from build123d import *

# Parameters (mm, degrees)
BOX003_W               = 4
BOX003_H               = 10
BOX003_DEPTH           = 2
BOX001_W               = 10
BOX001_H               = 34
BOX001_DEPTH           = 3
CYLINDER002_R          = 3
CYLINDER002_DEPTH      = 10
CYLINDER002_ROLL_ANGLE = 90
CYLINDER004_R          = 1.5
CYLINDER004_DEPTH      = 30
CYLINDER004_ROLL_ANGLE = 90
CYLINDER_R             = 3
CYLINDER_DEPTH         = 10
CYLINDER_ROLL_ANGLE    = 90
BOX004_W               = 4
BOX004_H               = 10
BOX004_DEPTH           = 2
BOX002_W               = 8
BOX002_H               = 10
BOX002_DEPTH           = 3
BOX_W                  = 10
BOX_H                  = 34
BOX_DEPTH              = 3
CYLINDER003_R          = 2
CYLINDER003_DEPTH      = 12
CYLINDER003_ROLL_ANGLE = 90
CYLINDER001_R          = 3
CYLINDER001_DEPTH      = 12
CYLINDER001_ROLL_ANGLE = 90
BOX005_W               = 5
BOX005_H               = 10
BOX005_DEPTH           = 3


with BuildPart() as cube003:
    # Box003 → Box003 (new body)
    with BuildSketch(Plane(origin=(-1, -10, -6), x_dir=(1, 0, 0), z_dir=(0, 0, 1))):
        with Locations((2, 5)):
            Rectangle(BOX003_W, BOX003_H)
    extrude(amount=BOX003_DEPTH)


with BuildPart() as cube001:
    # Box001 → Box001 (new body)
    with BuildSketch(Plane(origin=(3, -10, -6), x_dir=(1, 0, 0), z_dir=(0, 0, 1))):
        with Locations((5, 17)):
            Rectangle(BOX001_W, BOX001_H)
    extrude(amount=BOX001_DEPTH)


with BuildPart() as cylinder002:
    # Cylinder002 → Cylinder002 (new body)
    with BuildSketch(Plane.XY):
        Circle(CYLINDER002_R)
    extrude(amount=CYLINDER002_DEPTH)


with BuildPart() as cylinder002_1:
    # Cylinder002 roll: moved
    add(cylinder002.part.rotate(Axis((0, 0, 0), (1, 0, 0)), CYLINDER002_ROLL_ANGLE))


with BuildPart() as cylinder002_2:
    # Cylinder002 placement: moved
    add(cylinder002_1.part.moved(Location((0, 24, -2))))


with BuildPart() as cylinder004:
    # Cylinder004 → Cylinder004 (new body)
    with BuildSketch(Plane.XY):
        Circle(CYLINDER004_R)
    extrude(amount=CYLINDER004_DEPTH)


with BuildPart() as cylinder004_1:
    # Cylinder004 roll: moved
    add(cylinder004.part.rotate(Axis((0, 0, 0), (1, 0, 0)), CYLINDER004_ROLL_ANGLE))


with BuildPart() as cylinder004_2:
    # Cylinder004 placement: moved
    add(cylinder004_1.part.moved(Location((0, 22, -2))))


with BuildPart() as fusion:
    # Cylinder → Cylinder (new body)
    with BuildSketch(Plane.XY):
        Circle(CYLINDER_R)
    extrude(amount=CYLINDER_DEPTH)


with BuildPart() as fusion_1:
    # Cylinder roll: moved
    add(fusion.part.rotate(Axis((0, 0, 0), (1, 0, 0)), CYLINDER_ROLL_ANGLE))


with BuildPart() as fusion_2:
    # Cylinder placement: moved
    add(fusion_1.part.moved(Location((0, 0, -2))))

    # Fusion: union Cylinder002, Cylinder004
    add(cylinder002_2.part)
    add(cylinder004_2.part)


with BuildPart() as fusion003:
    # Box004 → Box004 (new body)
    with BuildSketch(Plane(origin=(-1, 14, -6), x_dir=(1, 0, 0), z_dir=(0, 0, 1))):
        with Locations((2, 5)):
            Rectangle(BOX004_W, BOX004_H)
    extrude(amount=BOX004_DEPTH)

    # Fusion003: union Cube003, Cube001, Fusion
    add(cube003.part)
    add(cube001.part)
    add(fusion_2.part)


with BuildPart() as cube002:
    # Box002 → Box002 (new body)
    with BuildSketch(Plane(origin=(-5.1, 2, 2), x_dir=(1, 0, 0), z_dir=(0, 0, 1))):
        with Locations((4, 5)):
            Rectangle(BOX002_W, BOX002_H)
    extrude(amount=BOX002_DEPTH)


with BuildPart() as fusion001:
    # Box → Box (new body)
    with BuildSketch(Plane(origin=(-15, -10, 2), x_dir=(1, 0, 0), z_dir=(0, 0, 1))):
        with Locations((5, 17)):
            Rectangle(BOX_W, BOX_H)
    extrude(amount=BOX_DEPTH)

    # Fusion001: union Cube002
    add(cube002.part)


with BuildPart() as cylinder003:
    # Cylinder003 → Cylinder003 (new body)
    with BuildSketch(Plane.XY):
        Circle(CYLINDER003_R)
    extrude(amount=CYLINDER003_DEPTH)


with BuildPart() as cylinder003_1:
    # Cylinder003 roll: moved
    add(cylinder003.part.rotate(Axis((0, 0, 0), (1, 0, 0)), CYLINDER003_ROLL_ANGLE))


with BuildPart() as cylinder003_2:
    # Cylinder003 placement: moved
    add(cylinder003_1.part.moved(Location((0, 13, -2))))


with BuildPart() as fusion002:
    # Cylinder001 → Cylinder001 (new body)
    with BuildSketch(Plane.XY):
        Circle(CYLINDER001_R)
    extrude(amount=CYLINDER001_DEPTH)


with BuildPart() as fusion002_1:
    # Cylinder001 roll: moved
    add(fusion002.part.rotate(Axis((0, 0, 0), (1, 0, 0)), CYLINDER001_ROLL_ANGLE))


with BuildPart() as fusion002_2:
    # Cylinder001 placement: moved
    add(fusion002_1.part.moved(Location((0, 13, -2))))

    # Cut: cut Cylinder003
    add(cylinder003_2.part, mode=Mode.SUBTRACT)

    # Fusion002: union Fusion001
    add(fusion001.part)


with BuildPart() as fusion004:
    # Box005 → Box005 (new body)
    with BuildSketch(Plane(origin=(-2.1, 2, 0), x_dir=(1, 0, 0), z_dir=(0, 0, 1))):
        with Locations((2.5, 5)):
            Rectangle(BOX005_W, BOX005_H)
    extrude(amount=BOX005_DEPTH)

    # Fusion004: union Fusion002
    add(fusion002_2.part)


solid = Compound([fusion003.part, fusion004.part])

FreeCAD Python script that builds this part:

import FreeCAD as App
import Part
import Sketcher
Q = App.Units.Quantity


def add_polygon(sketch, points):
    """Adds a closed chain of lines whose ends are joined by coincident constraints."""
    first, n = sketch.GeometryCount, len(points)
    for a, b in zip(points, points[1:] + points[:1]):
        sketch.addGeometry(Part.LineSegment(App.Vector(*a, 0), App.Vector(*b, 0)), False)
    for i in range(n):
        sketch.addConstraint(Sketcher.Constraint("Coincident", first + i, 2, first + (i + 1) % n, 1))

doc = App.newDocument("Part")
body = doc.addObject("PartDesign::Body", "Body")

# Sketch on XY plane
sketch1 = body.newObject("Sketcher::SketchObject", "Sketch")
sketch1.AttachmentSupport = (doc.getObject("XY_Plane"), [""])
sketch1.MapMode = "FlatFace"
sketch1.AttachmentOffset = App.Placement(App.Vector(0, 0, -6), App.Rotation())
add_polygon(sketch1, [(-1, 0), (-1, -10), (3, -10), (3, 0)])  # lines 0-3
sketch1.addConstraint([
    Sketcher.Constraint("Vertical", 0),
    Sketcher.Constraint("Horizontal", 1),
    Sketcher.Constraint("Vertical", 2),
    Sketcher.Constraint("Horizontal", 3),
    Sketcher.Constraint("PointOnObject", 2, 2, -1),
    Sketcher.Constraint("DistanceX", 1, 1, 1, 2, Q("4 mm")),
    Sketcher.Constraint("DistanceY", 0, 2, 0, 1, Q("10 mm")),
    Sketcher.Constraint("DistanceX", 0, 2, -1, 1, Q("1 mm")),
])
pad1 = body.newObject("PartDesign::Pad", "Pad")
pad1.Profile = sketch1
pad1.Length = 2
body2 = doc.addObject("PartDesign::Body", "Body001")

# Sketch on XY plane
sketch2 = body2.newObject("Sketcher::SketchObject", "Sketch001")
sketch2.AttachmentSupport = (doc.getObject("XY_Plane001"), [""])
sketch2.MapMode = "FlatFace"
sketch2.AttachmentOffset = App.Placement(App.Vector(0, 0, -6), App.Rotation())
add_polygon(sketch2, [(3, 24), (3, -10), (13, -10), (13, 24)])  # lines 0-3
sketch2.addConstraint([
    Sketcher.Constraint("Vertical", 0),
    Sketcher.Constraint("Horizontal", 1),
    Sketcher.Constraint("Vertical", 2),
    Sketcher.Constraint("Horizontal", 3),
    Sketcher.Constraint("DistanceX", 1, 1, 1, 2, Q("10 mm")),
    Sketcher.Constraint("DistanceY", 0, 2, 0, 1, Q("34 mm")),
    Sketcher.Constraint("DistanceX", -1, 1, 0, 2, Q("3 mm")),
    Sketcher.Constraint("DistanceY", 0, 2, -1, 1, Q("10 mm")),
])
pad2 = body2.newObject("PartDesign::Pad", "Pad001")
pad2.Profile = sketch2
pad2.Length = 3
body3 = doc.addObject("PartDesign::Body", "Body002")

# Sketch on XY plane
sketch3 = body3.newObject("Sketcher::SketchObject", "Sketch002")
sketch3.AttachmentSupport = (doc.getObject("XY_Plane002"), [""])
sketch3.MapMode = "FlatFace"
sketch3.addGeometry(Part.Circle(App.Vector(0, 0, 0), App.Vector(0, 0, 1), 3), False)
sketch3.addConstraint([
    Sketcher.Constraint("Coincident", 0, 3, -1, 1),
    Sketcher.Constraint("Diameter", 0, Q("6 mm")),
])
pad3 = body3.newObject("PartDesign::Pad", "Pad002")
pad3.Profile = sketch3
pad3.Length = 10
body4 = doc.addObject("PartDesign::Body", "Body003")
doc.recompute()

body3.Placement = App.Placement(App.Vector(0, 0, 0), App.Rotation(App.Vector(1, 0, 0), 90))
boolean = body4.newObject("PartDesign::Boolean", "Boolean")
boolean.Type = "Fuse"
boolean.addObjects([body3])
body5 = doc.addObject("PartDesign::Body", "Body004")
doc.recompute()

body4.Placement = App.Placement(App.Vector(0, 24, -2), App.Rotation(App.Vector(0, 0, 1), 0))
boolean2 = body5.newObject("PartDesign::Boolean", "Boolean001")
boolean2.Type = "Fuse"
boolean2.addObjects([body4])
body6 = doc.addObject("PartDesign::Body", "Body005")

# Sketch on XY plane
sketch4 = body6.newObject("Sketcher::SketchObject", "Sketch003")
sketch4.AttachmentSupport = (doc.getObject("XY_Plane005"), [""])
sketch4.MapMode = "FlatFace"
sketch4.addGeometry(Part.Circle(App.Vector(0, 0, 0), App.Vector(0, 0, 1), 1.5), False)
sketch4.addConstraint([
    Sketcher.Constraint("Coincident", 0, 3, -1, 1),
    Sketcher.Constraint("Diameter", 0, Q("3 mm")),
])
pad4 = body6.newObject("PartDesign::Pad", "Pad003")
pad4.Profile = sketch4
pad4.Length = 30
body7 = doc.addObject("PartDesign::Body", "Body006")
doc.recompute()

body6.Placement = App.Placement(App.Vector(0, 0, 0), App.Rotation(App.Vector(1, 0, 0), 90))
boolean3 = body7.newObject("PartDesign::Boolean", "Boolean002")
boolean3.Type = "Fuse"
boolean3.addObjects([body6])
body8 = doc.addObject("PartDesign::Body", "Body007")
doc.recompute()

body7.Placement = App.Placement(App.Vector(0, 22, -2), App.Rotation(App.Vector(0, 0, 1), 0))
boolean4 = body8.newObject("PartDesign::Boolean", "Boolean003")
boolean4.Type = "Fuse"
boolean4.addObjects([body7])
body9 = doc.addObject("PartDesign::Body", "Body008")

# Sketch on XY plane
sketch5 = body9.newObject("Sketcher::SketchObject", "Sketch004")
sketch5.AttachmentSupport = (doc.getObject("XY_Plane008"), [""])
sketch5.MapMode = "FlatFace"
sketch5.addGeometry(Part.Circle(App.Vector(0, 0, 0), App.Vector(0, 0, 1), 3), False)
sketch5.addConstraint([
    Sketcher.Constraint("Coincident", 0, 3, -1, 1),
    Sketcher.Constraint("Diameter", 0, Q("6 mm")),
])
pad5 = body9.newObject("PartDesign::Pad", "Pad004")
pad5.Profile = sketch5
pad5.Length = 10
body10 = doc.addObject("PartDesign::Body", "Body009")
doc.recompute()

body9.Placement = App.Placement(App.Vector(0, 0, 0), App.Rotation(App.Vector(1, 0, 0), 90))
boolean5 = body10.newObject("PartDesign::Boolean", "Boolean004")
boolean5.Type = "Fuse"
boolean5.addObjects([body9])
body11 = doc.addObject("PartDesign::Body", "Body010")
body11.AllowCompound = True
doc.recompute()

body10.Placement = App.Placement(App.Vector(0, 0, -2), App.Rotation(App.Vector(0, 0, 1), 0))
boolean6 = body11.newObject("PartDesign::Boolean", "Boolean005")
boolean6.Type = "Fuse"
boolean6.addObjects([body10])
doc.recompute()

boolean7 = body11.newObject("PartDesign::Boolean", "Boolean006")
boolean7.Type = "Fuse"
boolean7.addObjects([body5])
doc.recompute()

boolean8 = body11.newObject("PartDesign::Boolean", "Boolean007")
boolean8.Type = "Fuse"
boolean8.addObjects([body8])
body12 = doc.addObject("PartDesign::Body", "Body011")
body12.AllowCompound = True

# Sketch on XY plane
sketch6 = body12.newObject("Sketcher::SketchObject", "Sketch005")
sketch6.AttachmentSupport = (doc.getObject("XY_Plane011"), [""])
sketch6.MapMode = "FlatFace"
sketch6.AttachmentOffset = App.Placement(App.Vector(0, 0, -6), App.Rotation())
add_polygon(sketch6, [(-1, 24), (-1, 14), (3, 14), (3, 24)])  # lines 0-3
sketch6.addConstraint([
    Sketcher.Constraint("Vertical", 0),
    Sketcher.Constraint("Horizontal", 1),
    Sketcher.Constraint("Vertical", 2),
    Sketcher.Constraint("Horizontal", 3),
    Sketcher.Constraint("DistanceX", 1, 1, 1, 2, Q("4 mm")),
    Sketcher.Constraint("DistanceY", 0, 2, 0, 1, Q("10 mm")),
    Sketcher.Constraint("DistanceX", 0, 2, -1, 1, Q("1 mm")),
    Sketcher.Constraint("DistanceY", -1, 1, 0, 2, Q("14 mm")),
])
pad6 = body12.newObject("PartDesign::Pad", "Pad005")
pad6.Profile = sketch6
pad6.Length = 2
doc.recompute()

boolean9 = body12.newObject("PartDesign::Boolean", "Boolean008")
boolean9.Type = "Fuse"
boolean9.addObjects([body])
doc.recompute()

boolean10 = body12.newObject("PartDesign::Boolean", "Boolean009")
boolean10.Type = "Fuse"
boolean10.addObjects([body2])
doc.recompute()

boolean11 = body12.newObject("PartDesign::Boolean", "Boolean010")
boolean11.Type = "Fuse"
boolean11.addObjects([body11])
body13 = doc.addObject("PartDesign::Body", "Body012")

# Sketch on XY plane
sketch7 = body13.newObject("Sketcher::SketchObject", "Sketch006")
sketch7.AttachmentSupport = (doc.getObject("XY_Plane012"), [""])
sketch7.MapMode = "FlatFace"
sketch7.AttachmentOffset = App.Placement(App.Vector(0, 0, 2), App.Rotation())
add_polygon(sketch7, [(-5.1, 12), (-5.1, 2), (2.9, 2), (2.9, 12)])  # lines 0-3
sketch7.addConstraint([
    Sketcher.Constraint("Vertical", 0),
    Sketcher.Constraint("Horizontal", 1),
    Sketcher.Constraint("Vertical", 2),
    Sketcher.Constraint("Horizontal", 3),
    Sketcher.Constraint("DistanceX", 1, 1, 1, 2, Q("8 mm")),
    Sketcher.Constraint("DistanceY", 0, 2, 0, 1, Q("10 mm")),
    Sketcher.Constraint("DistanceY", -1, 1, 0, 2, Q("2 mm")),
    Sketcher.Constraint("DistanceX", 0, 2, -1, 1, Q("5.1 mm")),
])
pad7 = body13.newObject("PartDesign::Pad", "Pad006")
pad7.Profile = sketch7
pad7.Length = 3
body14 = doc.addObject("PartDesign::Body", "Body013")

# Sketch on XY plane
sketch8 = body14.newObject("Sketcher::SketchObject", "Sketch007")
sketch8.AttachmentSupport = (doc.getObject("XY_Plane013"), [""])
sketch8.MapMode = "FlatFace"
sketch8.AttachmentOffset = App.Placement(App.Vector(0, 0, 2), App.Rotation())
add_polygon(sketch8, [(-15, 24), (-15, -10), (-5, -10), (-5, 24)])  # lines 0-3
sketch8.addConstraint([
    Sketcher.Constraint("Vertical", 0),
    Sketcher.Constraint("Horizontal", 1),
    Sketcher.Constraint("Vertical", 2),
    Sketcher.Constraint("Horizontal", 3),
    Sketcher.Constraint("DistanceX", 1, 1, 1, 2, Q("10 mm")),
    Sketcher.Constraint("DistanceY", 0, 2, 0, 1, Q("34 mm")),
    Sketcher.Constraint("DistanceX", 0, 2, -1, 1, Q("15 mm")),
    Sketcher.Constraint("DistanceY", 0, 2, -1, 1, Q("10 mm")),
])
pad8 = body14.newObject("PartDesign::Pad", "Pad007")
pad8.Profile = sketch8
pad8.Length = 3
doc.recompute()

boolean12 = body14.newObject("PartDesign::Boolean", "Boolean011")
boolean12.Type = "Fuse"
boolean12.addObjects([body13])
body15 = doc.addObject("PartDesign::Body", "Body014")

# Sketch on XY plane
sketch9 = body15.newObject("Sketcher::SketchObject", "Sketch008")
sketch9.AttachmentSupport = (doc.getObject("XY_Plane014"), [""])
sketch9.MapMode = "FlatFace"
sketch9.addGeometry(Part.Circle(App.Vector(0, 0, 0), App.Vector(0, 0, 1), 2), False)
sketch9.addConstraint([
    Sketcher.Constraint("Coincident", 0, 3, -1, 1),
    Sketcher.Constraint("Diameter", 0, Q("4 mm")),
])
pad9 = body15.newObject("PartDesign::Pad", "Pad008")
pad9.Profile = sketch9
pad9.Length = 12
body16 = doc.addObject("PartDesign::Body", "Body015")
doc.recompute()

body15.Placement = App.Placement(App.Vector(0, 0, 0), App.Rotation(App.Vector(1, 0, 0), 90))
boolean13 = body16.newObject("PartDesign::Boolean", "Boolean012")
boolean13.Type = "Fuse"
boolean13.addObjects([body15])
body17 = doc.addObject("PartDesign::Body", "Body016")
doc.recompute()

body16.Placement = App.Placement(App.Vector(0, 13, -2), App.Rotation(App.Vector(0, 0, 1), 0))
boolean14 = body17.newObject("PartDesign::Boolean", "Boolean013")
boolean14.Type = "Fuse"
boolean14.addObjects([body16])
body18 = doc.addObject("PartDesign::Body", "Body017")

# Sketch on XY plane
sketch10 = body18.newObject("Sketcher::SketchObject", "Sketch009")
sketch10.AttachmentSupport = (doc.getObject("XY_Plane017"), [""])
sketch10.MapMode = "FlatFace"
sketch10.addGeometry(Part.Circle(App.Vector(0, 0, 0), App.Vector(0, 0, 1), 3), False)
sketch10.addConstraint([
    Sketcher.Constraint("Coincident", 0, 3, -1, 1),
    Sketcher.Constraint("Diameter", 0, Q("6 mm")),
])
pad10 = body18.newObject("PartDesign::Pad", "Pad009")
pad10.Profile = sketch10
pad10.Length = 12
body19 = doc.addObject("PartDesign::Body", "Body018")
doc.recompute()

body18.Placement = App.Placement(App.Vector(0, 0, 0), App.Rotation(App.Vector(1, 0, 0), 90))
boolean15 = body19.newObject("PartDesign::Boolean", "Boolean014")
boolean15.Type = "Fuse"
boolean15.addObjects([body18])
body20 = doc.addObject("PartDesign::Body", "Body019")
body20.AllowCompound = True
doc.recompute()

body19.Placement = App.Placement(App.Vector(0, 13, -2), App.Rotation(App.Vector(0, 0, 1), 0))
boolean16 = body20.newObject("PartDesign::Boolean", "Boolean015")
boolean16.Type = "Fuse"
boolean16.addObjects([body19])
doc.recompute()

boolean17 = body20.newObject("PartDesign::Boolean", "Boolean016")
boolean17.Type = "Cut"
boolean17.addObjects([body17])
doc.recompute()

boolean18 = body20.newObject("PartDesign::Boolean", "Boolean017")
boolean18.Type = "Fuse"
boolean18.addObjects([body14])
body21 = doc.addObject("PartDesign::Body", "Body020")

# Sketch on XY plane
sketch11 = body21.newObject("Sketcher::SketchObject", "Sketch010")
sketch11.AttachmentSupport = (doc.getObject("XY_Plane020"), [""])
sketch11.MapMode = "FlatFace"
add_polygon(sketch11, [(-2.1, 12), (-2.1, 2), (2.9, 2), (2.9, 12)])  # lines 0-3
sketch11.addConstraint([
    Sketcher.Constraint("Vertical", 0),
    Sketcher.Constraint("Horizontal", 1),
    Sketcher.Constraint("Vertical", 2),
    Sketcher.Constraint("Horizontal", 3),
    Sketcher.Constraint("DistanceX", 1, 1, 1, 2, Q("5 mm")),
    Sketcher.Constraint("DistanceY", 0, 2, 0, 1, Q("10 mm")),
    Sketcher.Constraint("DistanceY", -1, 1, 0, 2, Q("2 mm")),
    Sketcher.Constraint("DistanceX", 0, 2, -1, 1, Q("2.1 mm")),
])
pad11 = body21.newObject("PartDesign::Pad", "Pad010")
pad11.Profile = sketch11
pad11.Length = 3
doc.recompute()

boolean19 = body21.newObject("PartDesign::Boolean", "Boolean018")
boolean19.Type = "Fuse"
boolean19.addObjects([body20])

doc.recompute()
